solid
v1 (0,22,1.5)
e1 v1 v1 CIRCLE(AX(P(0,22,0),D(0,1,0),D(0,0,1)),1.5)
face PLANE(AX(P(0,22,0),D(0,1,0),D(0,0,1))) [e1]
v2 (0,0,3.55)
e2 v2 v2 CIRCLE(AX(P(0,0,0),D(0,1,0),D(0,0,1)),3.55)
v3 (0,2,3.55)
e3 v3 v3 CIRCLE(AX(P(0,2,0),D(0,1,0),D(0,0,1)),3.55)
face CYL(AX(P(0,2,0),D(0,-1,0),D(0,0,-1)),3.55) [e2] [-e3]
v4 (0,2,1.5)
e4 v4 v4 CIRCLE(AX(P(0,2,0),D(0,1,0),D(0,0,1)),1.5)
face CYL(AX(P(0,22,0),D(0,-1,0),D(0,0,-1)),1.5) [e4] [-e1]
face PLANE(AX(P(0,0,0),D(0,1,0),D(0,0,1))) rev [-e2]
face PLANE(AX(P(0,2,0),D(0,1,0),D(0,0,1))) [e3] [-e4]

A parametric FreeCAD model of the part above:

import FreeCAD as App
import Part
import Sketcher

doc = App.newDocument("Part")
body = doc.addObject("PartDesign::Body", "Body")

# Sketch on XZ plane
sketch1 = doc.addObject("Sketcher::SketchObject", "Sketch")
body.addObject(sketch1)
sketch1.AttachmentSupport = (doc.XZ_Plane, [""])
sketch1.MapMode = "FlatFace"
sketch1.addGeometry(Part.Circle(App.Vector(0, 0, 0), App.Vector(0, 0, 1), 3.5), False)
sketch1.addConstraint(Sketcher.Constraint("Coincident", 0, 3, -1, 1))
sketch1.addConstraint(Sketcher.Constraint("Diameter", 0, 7.1))
pad1 = doc.addObject("PartDesign::Pad", "Pad")
body.addObject(pad1)
pad1.Profile = sketch1
pad1.Length = 2
pad1.Reversed = True

# Sketch on XZ plane
sketch2 = doc.addObject("Sketcher::SketchObject", "Sketch001")
body.addObject(sketch2)
sketch2.AttachmentSupport = (doc.XZ_Plane, [""])
sketch2.MapMode = "FlatFace"
sketch2.AttachmentOffset = App.Placement(App.Vector(0, 0, -2), App.Rotation())
sketch2.addGeometry(Part.Circle(App.Vector(0, 0, 0), App.Vector(0, 0, 1), 1.5), False)
sketch2.addConstraint(Sketcher.Constraint("Coincident", 0, 3, -1, 1))
sketch2.addConstraint(Sketcher.Constraint("Diameter", 0, 3.0))
pad2 = doc.addObject("PartDesign::Pad", "Pad001")
body.addObject(pad2)
pad2.Profile = sketch2
pad2.Length = 20
pad2.Reversed = True

doc.recompute()
